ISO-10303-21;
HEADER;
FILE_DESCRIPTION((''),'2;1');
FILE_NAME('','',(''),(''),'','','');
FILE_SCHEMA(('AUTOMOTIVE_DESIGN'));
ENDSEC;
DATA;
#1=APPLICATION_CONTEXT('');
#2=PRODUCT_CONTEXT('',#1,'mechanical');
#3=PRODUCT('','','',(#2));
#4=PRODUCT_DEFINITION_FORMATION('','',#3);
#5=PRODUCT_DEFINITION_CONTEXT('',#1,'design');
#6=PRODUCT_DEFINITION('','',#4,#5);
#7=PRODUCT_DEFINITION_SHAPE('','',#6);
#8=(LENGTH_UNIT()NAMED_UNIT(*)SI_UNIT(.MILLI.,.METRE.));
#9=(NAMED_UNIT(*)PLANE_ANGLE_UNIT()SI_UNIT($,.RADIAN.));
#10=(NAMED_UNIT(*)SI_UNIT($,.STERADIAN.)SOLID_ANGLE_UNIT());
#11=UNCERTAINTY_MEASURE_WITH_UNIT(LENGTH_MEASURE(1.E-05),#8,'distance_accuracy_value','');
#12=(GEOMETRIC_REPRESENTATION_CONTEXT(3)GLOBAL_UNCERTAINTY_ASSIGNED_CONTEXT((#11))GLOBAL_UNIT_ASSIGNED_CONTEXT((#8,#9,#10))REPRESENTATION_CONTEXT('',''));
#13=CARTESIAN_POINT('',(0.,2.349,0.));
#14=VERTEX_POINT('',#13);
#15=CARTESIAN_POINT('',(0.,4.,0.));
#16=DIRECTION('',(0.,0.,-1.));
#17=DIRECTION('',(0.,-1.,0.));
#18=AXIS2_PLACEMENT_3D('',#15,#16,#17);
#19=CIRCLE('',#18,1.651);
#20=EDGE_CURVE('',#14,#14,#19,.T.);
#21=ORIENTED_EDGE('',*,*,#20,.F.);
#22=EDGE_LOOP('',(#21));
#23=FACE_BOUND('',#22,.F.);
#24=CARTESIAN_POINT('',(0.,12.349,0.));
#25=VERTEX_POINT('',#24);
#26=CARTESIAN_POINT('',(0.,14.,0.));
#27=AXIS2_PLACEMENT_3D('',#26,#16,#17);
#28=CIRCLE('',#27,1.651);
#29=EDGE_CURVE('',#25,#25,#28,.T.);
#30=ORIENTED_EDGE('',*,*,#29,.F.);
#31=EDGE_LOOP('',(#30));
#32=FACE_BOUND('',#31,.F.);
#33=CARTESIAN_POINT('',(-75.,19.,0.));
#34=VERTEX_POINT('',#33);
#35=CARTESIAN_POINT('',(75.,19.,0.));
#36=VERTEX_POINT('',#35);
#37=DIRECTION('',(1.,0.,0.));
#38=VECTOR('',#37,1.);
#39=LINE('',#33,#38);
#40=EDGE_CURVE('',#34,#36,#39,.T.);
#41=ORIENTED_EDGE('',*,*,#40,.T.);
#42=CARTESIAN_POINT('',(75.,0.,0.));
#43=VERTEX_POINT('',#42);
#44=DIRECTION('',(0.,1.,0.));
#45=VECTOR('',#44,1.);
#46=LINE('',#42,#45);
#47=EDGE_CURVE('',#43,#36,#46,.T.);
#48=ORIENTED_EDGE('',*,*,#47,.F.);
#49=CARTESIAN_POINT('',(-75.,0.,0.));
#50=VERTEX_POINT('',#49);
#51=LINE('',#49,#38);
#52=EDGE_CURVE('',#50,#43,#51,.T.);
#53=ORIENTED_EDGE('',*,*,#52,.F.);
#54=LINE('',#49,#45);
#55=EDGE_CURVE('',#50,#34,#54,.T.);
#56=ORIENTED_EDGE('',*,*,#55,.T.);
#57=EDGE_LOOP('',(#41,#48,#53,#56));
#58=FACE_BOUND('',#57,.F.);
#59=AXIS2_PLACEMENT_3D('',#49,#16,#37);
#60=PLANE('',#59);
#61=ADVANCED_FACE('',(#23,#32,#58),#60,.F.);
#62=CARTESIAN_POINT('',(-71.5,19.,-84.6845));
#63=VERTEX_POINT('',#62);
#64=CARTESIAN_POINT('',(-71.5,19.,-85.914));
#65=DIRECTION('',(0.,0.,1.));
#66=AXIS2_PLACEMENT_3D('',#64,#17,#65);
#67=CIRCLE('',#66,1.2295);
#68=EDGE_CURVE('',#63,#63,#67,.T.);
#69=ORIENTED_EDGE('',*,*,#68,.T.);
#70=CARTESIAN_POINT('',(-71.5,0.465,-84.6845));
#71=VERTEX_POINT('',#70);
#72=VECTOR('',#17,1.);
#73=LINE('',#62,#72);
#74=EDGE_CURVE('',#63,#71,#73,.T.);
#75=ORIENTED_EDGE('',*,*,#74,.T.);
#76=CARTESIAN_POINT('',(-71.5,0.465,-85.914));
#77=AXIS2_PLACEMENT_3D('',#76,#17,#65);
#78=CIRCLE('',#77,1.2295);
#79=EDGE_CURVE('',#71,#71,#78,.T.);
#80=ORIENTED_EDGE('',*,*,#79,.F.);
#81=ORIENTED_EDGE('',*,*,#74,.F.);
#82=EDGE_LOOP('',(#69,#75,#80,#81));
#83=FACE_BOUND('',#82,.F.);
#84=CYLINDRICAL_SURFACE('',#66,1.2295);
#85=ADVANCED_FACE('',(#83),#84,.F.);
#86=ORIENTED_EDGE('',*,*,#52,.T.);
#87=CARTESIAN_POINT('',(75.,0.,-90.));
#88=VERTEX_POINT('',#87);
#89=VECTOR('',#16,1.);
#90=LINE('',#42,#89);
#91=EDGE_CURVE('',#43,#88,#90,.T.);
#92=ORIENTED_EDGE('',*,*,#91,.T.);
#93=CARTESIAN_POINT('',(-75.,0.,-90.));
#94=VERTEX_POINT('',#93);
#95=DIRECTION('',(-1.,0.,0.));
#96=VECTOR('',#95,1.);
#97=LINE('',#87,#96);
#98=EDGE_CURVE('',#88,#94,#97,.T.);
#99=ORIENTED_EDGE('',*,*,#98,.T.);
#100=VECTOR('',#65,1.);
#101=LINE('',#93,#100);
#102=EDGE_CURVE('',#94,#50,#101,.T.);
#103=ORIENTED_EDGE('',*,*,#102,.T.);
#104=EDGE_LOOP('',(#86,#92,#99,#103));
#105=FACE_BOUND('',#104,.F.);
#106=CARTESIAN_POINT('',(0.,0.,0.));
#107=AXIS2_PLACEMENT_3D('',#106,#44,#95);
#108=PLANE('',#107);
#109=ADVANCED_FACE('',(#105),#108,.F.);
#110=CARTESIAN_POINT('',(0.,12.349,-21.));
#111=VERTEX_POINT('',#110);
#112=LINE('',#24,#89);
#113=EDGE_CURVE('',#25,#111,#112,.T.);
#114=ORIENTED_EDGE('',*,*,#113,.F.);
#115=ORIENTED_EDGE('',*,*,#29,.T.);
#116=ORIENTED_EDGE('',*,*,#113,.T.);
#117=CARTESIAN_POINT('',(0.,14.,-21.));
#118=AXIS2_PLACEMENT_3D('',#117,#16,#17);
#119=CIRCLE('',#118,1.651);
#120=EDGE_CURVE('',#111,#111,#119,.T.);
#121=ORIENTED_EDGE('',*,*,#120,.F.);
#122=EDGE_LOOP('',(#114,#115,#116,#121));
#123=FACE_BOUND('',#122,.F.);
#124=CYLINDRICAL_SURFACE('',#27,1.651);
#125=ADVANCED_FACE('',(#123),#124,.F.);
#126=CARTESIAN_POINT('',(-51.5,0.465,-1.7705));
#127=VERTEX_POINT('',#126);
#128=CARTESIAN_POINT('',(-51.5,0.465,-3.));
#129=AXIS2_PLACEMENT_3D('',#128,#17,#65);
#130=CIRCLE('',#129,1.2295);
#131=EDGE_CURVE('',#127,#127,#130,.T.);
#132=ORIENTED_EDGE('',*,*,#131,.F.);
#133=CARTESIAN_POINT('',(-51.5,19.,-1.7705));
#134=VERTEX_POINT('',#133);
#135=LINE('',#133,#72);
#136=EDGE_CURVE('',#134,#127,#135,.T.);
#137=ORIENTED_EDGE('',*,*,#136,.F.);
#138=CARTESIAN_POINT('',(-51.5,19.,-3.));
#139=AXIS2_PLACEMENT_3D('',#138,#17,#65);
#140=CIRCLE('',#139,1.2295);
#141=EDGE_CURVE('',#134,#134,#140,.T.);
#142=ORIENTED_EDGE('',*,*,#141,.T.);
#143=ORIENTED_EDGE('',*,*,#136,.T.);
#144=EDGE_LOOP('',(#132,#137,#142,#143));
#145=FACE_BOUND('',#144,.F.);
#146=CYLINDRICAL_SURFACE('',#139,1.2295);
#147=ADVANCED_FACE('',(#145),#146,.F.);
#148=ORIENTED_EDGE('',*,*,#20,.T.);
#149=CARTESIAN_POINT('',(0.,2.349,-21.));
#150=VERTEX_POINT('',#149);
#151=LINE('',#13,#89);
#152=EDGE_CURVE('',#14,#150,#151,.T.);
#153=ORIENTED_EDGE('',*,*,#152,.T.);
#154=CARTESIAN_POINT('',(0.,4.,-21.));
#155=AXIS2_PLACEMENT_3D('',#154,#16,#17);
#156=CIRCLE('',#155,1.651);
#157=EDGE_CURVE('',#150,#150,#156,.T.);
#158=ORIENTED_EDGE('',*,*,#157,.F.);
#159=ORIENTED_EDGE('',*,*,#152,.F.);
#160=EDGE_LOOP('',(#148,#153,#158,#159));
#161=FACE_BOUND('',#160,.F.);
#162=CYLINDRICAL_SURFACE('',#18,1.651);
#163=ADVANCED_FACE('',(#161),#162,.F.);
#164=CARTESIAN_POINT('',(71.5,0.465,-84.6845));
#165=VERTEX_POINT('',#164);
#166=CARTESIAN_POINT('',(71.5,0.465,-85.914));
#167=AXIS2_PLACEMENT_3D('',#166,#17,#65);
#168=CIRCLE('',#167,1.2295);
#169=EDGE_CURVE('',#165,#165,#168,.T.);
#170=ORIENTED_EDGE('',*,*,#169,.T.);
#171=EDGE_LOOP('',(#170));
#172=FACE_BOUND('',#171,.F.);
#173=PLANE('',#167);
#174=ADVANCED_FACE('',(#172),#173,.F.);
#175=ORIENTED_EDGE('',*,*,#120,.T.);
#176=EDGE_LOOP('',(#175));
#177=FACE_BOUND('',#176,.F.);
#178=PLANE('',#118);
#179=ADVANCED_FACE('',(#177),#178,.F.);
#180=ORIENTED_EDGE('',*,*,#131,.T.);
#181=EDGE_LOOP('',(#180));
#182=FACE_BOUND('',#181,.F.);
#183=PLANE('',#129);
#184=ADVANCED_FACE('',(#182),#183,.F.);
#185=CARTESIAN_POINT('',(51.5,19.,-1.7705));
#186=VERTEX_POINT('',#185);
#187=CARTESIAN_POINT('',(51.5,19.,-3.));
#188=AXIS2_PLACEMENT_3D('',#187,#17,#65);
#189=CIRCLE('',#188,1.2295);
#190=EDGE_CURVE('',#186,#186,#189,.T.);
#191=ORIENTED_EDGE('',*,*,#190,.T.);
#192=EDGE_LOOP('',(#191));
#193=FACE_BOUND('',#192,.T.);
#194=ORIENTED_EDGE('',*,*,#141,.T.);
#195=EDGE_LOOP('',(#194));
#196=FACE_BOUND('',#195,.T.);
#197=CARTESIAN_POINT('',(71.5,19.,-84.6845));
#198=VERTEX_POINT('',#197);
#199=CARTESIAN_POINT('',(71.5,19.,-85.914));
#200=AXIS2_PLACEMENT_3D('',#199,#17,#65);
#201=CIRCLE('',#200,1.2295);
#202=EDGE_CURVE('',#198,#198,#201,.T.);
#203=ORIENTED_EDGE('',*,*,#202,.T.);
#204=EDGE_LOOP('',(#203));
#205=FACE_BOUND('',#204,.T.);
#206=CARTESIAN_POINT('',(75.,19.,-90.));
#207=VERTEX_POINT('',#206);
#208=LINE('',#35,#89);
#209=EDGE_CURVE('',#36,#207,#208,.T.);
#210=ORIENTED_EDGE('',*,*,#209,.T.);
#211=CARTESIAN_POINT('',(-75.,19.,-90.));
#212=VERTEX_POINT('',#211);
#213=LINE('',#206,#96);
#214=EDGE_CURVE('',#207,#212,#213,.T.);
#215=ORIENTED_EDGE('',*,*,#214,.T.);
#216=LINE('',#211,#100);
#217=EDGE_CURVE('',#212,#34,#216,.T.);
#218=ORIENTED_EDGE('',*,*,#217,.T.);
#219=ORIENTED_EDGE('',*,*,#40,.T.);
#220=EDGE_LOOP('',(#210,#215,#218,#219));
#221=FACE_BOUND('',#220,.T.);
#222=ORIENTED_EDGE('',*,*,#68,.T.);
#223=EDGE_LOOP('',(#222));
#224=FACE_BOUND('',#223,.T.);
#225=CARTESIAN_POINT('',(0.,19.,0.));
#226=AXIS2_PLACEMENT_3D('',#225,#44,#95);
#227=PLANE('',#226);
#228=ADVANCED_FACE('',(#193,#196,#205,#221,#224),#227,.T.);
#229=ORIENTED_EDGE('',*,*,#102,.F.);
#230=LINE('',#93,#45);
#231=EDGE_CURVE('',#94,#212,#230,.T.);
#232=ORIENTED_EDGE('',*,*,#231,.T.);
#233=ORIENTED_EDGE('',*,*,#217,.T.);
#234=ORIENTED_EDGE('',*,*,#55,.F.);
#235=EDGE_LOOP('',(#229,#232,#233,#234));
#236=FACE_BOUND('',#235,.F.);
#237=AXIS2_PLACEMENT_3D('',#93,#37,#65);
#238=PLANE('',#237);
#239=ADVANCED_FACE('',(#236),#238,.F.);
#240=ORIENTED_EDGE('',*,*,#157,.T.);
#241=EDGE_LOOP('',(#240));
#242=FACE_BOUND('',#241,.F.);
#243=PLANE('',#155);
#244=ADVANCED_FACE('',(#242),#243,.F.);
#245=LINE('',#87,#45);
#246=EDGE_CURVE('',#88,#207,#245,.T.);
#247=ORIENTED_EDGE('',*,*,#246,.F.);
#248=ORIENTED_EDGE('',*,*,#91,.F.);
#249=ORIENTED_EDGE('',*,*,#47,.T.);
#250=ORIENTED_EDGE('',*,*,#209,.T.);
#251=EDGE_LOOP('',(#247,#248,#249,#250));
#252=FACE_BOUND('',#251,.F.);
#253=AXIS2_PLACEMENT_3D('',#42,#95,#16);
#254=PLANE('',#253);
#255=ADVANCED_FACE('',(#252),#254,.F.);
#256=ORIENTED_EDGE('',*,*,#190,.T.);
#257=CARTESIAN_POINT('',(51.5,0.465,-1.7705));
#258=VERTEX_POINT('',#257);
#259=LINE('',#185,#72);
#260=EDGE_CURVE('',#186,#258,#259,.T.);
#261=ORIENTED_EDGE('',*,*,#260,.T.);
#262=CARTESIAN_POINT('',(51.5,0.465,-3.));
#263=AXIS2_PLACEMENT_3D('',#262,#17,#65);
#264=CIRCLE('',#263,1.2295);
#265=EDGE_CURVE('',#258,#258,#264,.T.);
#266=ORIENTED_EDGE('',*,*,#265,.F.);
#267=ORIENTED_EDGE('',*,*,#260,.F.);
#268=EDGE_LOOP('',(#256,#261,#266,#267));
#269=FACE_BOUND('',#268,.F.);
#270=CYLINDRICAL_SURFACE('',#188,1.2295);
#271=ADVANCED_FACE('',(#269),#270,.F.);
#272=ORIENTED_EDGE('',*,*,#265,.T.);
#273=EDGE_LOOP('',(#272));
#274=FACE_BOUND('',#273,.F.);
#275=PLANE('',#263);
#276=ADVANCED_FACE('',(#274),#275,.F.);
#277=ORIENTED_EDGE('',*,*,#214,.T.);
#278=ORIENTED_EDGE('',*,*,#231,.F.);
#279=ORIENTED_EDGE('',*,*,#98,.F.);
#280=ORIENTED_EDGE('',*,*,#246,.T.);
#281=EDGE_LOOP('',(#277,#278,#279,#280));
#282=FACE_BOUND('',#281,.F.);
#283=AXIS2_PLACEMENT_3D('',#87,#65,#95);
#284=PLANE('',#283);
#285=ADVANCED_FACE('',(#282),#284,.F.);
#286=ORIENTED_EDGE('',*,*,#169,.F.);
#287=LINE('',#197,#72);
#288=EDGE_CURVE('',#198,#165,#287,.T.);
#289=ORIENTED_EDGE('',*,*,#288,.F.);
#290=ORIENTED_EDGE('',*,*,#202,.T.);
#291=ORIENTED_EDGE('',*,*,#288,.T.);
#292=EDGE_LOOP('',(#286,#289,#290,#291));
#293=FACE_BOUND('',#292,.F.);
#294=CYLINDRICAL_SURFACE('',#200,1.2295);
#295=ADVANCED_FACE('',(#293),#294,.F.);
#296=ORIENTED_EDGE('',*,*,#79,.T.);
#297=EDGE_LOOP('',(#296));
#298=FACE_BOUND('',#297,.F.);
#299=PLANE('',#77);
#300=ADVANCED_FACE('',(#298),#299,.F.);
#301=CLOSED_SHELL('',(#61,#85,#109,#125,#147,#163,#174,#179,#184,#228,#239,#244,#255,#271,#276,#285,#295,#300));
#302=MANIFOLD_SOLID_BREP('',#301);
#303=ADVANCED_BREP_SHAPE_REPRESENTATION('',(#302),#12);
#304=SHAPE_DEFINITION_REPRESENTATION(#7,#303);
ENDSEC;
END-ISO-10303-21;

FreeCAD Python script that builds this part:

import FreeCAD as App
import Part
import Sketcher
from FreeCAD import Vector

doc = App.newDocument("Part")
body = doc.addObject("PartDesign::Body", "Body")

# Sketch on XZ plane
sketch1 = doc.addObject("Sketcher::SketchObject", "Sketch")
body.addObject(sketch1)
sketch1.AttachmentSupport = (doc.XZ_Plane, [""])
sketch1.MapMode = "FlatFace"
sketch1.addGeometry(Part.LineSegment(Vector(-75, -90, 0), Vector(-75, 0, 0)), False)
sketch1.addGeometry(Part.LineSegment(Vector(-75, 0, 0), Vector(75, 0, 0)), False)
sketch1.addGeometry(Part.LineSegment(Vector(75, 0, 0), Vector(75, -90, 0)), False)
sketch1.addGeometry(Part.LineSegment(Vector(75, -90, 0), Vector(-75, -90, 0)), False)
sketch1.addConstraint(Sketcher.Constraint("Coincident", 0, 2, 1, 1))
sketch1.addConstraint(Sketcher.Constraint("Coincident", 1, 2, 2, 1))
sketch1.addConstraint(Sketcher.Constraint("Coincident", 2, 2, 3, 1))
sketch1.addConstraint(Sketcher.Constraint("Coincident", 3, 2, 0, 1))
sketch1.addConstraint(Sketcher.Constraint("Vertical", 0))
sketch1.addConstraint(Sketcher.Constraint("Horizontal", 1))
sketch1.addConstraint(Sketcher.Constraint("Vertical", 2))
sketch1.addConstraint(Sketcher.Constraint("Horizontal", 3))
sketch1.addConstraint(Sketcher.Constraint("Symmetric", 0, 2, 1, 2, -1, 1))
sketch1.addConstraint(Sketcher.Constraint("DistanceX", 1, 1, 1, 2, 150.0))
sketch1.addConstraint(Sketcher.Constraint("DistanceY", 0, 1, 0, 2, 90.0))
pad1 = doc.addObject("PartDesign::Pad", "Pad")
body.addObject(pad1)
pad1.Profile = sketch1
pad1.Length = 19
pad1.Reversed = True

# Sketch on XY plane
sketch2 = doc.addObject("Sketcher::SketchObject", "Sketch001")
body.addObject(sketch2)
sketch2.AttachmentSupport = (doc.XY_Plane, [""])
sketch2.MapMode = "FlatFace"
sketch2.addGeometry(Part.Circle(Vector(0, 4, 0), Vector(0, 0, 1), 1.7), False)
sketch2.addGeometry(Part.Circle(Vector(0, 14, 0), Vector(0, 0, 1), 1.7), False)
sketch2.addConstraint(Sketcher.Constraint("Equal", 0, 1))
sketch2.addConstraint(Sketcher.Constraint("PointOnObject", 0, 3, -2))
sketch2.addConstraint(Sketcher.Constraint("PointOnObject", 1, 3, -2))
sketch2.addConstraint(Sketcher.Constraint("Diameter", 0, 3.302))
sketch2.addConstraint(Sketcher.Constraint("DistanceY", -1, 1, 0, 3, 4.0))
sketch2.addConstraint(Sketcher.Constraint("DistanceY", -1, 1, 1, 3, 14.0))
doc.recompute()
hole = doc.addObject("PartDesign::Hole", "Hole")
body.addObject(hole)
hole.Profile = sketch2
hole.ThreadType = "None"
hole.Diameter = 3.302
hole.DepthType = "Dimension"
hole.Depth = 21
hole.DrillPoint = "Flat"

# Sketch on XZ plane
sketch3 = doc.addObject("Sketcher::SketchObject", "Sketch002")
body.addObject(sketch3)
sketch3.AttachmentSupport = (doc.XZ_Plane, [""])
sketch3.MapMode = "FlatFace"
sketch3.AttachmentOffset = App.Placement(Vector(0, 0, -19), App.Rotation())
sketch3.addGeometry(Part.Circle(Vector(-71.5, -85.9, 0), Vector(0, 0, 1), 1.2), False)
sketch3.addGeometry(Part.Circle(Vector(71.5, -85.9, 0), Vector(0, 0, 1), 1.2), False)
sketch3.addGeometry(Part.Circle(Vector(51.5, -3, 0), Vector(0, 0, 1), 1.2), False)
sketch3.addGeometry(Part.Circle(Vector(-51.5, -3, 0), Vector(0, 0, 1), 1.2), False)
sketch3.addConstraint(Sketcher.Constraint("Equal", 0, 1))
sketch3.addConstraint(Sketcher.Constraint("Equal", 1, 2))
sketch3.addConstraint(Sketcher.Constraint("Equal", 2, 3))
sketch3.addConstraint(Sketcher.Constraint("Symmetric", 0, 3, 1, 3, -2))
sketch3.addConstraint(Sketcher.Constraint("Symmetric", 2, 3, 3, 3, -2))
sketch3.addConstraint(Sketcher.Constraint("Diameter", 0, 2.459))
sketch3.addConstraint(Sketcher.Constraint("DistanceY", 2, 3, -1, 1, 3.0))
sketch3.addConstraint(Sketcher.Constraint("DistanceX", 0, 3, 1, 3, 143.0))
sketch3.addConstraint(Sketcher.Constraint("DistanceX", 2, 3, 1, 3, 20.0))
sketch3.addConstraint(Sketcher.Constraint("DistanceY", 0, 3, -1, 1, 85.914))
doc.recompute()
hole2 = doc.addObject("PartDesign::Hole", "Hole001")
body.addObject(hole2)
hole2.Profile = sketch3
hole2.ThreadType = "None"
hole2.Diameter = 2.459
hole2.DepthType = "Dimension"
hole2.Depth = 18.535
hole2.DrillPoint = "Flat"
hole2.Reversed = True

doc.recompute()
